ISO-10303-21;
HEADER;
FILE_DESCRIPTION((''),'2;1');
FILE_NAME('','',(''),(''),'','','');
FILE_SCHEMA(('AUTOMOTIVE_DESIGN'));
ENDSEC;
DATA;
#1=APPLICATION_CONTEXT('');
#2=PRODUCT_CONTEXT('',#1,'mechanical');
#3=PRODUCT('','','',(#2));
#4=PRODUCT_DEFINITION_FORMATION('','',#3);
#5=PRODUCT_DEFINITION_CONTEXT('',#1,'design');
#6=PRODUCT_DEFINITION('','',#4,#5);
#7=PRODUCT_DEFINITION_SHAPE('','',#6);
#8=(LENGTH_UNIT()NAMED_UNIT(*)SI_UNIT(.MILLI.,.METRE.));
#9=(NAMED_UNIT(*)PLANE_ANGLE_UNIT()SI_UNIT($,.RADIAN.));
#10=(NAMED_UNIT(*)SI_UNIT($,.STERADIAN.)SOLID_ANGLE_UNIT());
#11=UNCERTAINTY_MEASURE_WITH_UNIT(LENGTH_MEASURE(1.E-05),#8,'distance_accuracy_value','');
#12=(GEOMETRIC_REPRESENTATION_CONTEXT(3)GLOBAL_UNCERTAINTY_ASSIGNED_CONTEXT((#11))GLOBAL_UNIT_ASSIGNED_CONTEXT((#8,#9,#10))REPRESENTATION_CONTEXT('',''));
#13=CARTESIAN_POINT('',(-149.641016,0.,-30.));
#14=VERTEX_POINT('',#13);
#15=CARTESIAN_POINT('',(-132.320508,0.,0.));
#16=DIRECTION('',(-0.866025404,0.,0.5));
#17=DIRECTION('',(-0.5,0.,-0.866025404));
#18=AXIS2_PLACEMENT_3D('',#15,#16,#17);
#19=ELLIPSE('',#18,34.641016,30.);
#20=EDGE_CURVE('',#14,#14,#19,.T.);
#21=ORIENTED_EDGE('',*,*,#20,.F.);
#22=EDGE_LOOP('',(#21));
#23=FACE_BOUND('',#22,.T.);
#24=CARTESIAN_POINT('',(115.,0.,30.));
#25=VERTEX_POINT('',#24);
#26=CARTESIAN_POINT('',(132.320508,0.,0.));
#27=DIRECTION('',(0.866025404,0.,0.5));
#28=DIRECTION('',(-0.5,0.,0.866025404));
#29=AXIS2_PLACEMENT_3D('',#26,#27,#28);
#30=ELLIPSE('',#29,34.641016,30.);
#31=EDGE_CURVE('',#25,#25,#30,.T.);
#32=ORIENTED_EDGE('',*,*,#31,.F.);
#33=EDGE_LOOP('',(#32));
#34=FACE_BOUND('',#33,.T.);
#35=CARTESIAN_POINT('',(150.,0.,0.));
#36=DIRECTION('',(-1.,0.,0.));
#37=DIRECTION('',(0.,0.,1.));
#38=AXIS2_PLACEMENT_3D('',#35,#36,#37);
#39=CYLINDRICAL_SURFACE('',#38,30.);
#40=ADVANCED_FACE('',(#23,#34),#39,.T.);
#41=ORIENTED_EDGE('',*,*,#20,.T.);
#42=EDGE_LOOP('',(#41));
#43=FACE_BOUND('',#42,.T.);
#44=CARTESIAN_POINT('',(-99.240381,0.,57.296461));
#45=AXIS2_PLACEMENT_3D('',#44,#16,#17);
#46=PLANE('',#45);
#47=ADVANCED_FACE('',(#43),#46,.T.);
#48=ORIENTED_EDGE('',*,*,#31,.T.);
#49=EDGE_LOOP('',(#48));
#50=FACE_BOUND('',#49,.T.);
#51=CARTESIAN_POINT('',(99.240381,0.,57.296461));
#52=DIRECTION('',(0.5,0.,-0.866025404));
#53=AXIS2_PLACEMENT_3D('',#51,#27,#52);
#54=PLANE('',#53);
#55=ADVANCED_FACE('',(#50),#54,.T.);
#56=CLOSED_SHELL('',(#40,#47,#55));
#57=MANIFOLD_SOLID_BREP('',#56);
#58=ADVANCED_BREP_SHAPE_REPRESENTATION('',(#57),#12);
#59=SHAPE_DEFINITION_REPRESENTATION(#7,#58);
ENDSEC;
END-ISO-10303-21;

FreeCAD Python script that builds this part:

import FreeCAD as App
import Part
import Sketcher
from FreeCAD import Vector


def add_polygon(sketch, points):
    """Adds a closed chain of lines whose ends are joined by coincident constraints."""
    first, n = sketch.GeometryCount, len(points)
    for a, b in zip(points, points[1:] + points[:1]):
        sketch.addGeometry(Part.LineSegment(App.Vector(*a, 0), App.Vector(*b, 0)), False)
    for i in range(n):
        sketch.addConstraint(Sketcher.Constraint("Coincident", first + i, 2, first + (i + 1) % n, 1))

doc = App.newDocument("Part")
body = doc.addObject("PartDesign::Body", "Body")

# Sketch on YZ plane
sketch1 = body.newObject("Sketcher::SketchObject", "Sketch")
sketch1.AttachmentSupport = (doc.getObject("YZ_Plane"), [""])
sketch1.MapMode = "FlatFace"
sketch1.addGeometry(Part.Circle(Vector(0, 0, 0), Vector(0, 0, 1), 30), False)
sketch1.addConstraint([
    Sketcher.Constraint("Coincident", 0, 3, -1, 1),
    Sketcher.Constraint("Diameter", 0, 60.0),
])
pad1 = body.newObject("PartDesign::Pad", "Pad")
pad1.Profile = sketch1
pad1.Length = 300
pad1.Midplane = True

# Sketch on an angled plane
sketch2 = body.newObject("Sketcher::SketchObject", "Sketch001")
sketch2.Placement = App.Placement(Vector(99.240381, 0, 57.296461), App.Rotation(Vector(0, -1, 0), Vector(0.5, 0, -0.866025404), Vector(0.866025404, 0, 0.5), "ZXY"))
add_polygon(sketch2, [(-59, 102), (-59, 22), (50, 22), (50, 102)])  # lines 0-3
sketch2.addConstraint([
    Sketcher.Constraint("Vertical", 0),
    Sketcher.Constraint("Horizontal", 1),
    Sketcher.Constraint("Vertical", 2),
    Sketcher.Constraint("Horizontal", 3),
    Sketcher.Constraint("DistanceX", 1, 1, 1, 2, 109.772001),
    Sketcher.Constraint("DistanceY", 0, 2, 0, 1, 80.2515),
    Sketcher.Constraint("DistanceX", 0, 2, -1, 1, 59.34693),
    Sketcher.Constraint("DistanceY", -1, 1, 0, 2, 22.02694),
])
pocket1 = body.newObject("PartDesign::Pocket", "Pocket")
pocket1.Profile = sketch2
pocket1.Type = "ThroughAll"
pocket1.Reversed = True
doc.recompute()

mirrored = body.newObject("PartDesign::Mirrored", "Mirrored")
mirrored.Originals = [pocket1]
mirrored.MirrorPlane = (doc.getObject("YZ_Plane"), [""])
body.Tip = mirrored

doc.recompute()
